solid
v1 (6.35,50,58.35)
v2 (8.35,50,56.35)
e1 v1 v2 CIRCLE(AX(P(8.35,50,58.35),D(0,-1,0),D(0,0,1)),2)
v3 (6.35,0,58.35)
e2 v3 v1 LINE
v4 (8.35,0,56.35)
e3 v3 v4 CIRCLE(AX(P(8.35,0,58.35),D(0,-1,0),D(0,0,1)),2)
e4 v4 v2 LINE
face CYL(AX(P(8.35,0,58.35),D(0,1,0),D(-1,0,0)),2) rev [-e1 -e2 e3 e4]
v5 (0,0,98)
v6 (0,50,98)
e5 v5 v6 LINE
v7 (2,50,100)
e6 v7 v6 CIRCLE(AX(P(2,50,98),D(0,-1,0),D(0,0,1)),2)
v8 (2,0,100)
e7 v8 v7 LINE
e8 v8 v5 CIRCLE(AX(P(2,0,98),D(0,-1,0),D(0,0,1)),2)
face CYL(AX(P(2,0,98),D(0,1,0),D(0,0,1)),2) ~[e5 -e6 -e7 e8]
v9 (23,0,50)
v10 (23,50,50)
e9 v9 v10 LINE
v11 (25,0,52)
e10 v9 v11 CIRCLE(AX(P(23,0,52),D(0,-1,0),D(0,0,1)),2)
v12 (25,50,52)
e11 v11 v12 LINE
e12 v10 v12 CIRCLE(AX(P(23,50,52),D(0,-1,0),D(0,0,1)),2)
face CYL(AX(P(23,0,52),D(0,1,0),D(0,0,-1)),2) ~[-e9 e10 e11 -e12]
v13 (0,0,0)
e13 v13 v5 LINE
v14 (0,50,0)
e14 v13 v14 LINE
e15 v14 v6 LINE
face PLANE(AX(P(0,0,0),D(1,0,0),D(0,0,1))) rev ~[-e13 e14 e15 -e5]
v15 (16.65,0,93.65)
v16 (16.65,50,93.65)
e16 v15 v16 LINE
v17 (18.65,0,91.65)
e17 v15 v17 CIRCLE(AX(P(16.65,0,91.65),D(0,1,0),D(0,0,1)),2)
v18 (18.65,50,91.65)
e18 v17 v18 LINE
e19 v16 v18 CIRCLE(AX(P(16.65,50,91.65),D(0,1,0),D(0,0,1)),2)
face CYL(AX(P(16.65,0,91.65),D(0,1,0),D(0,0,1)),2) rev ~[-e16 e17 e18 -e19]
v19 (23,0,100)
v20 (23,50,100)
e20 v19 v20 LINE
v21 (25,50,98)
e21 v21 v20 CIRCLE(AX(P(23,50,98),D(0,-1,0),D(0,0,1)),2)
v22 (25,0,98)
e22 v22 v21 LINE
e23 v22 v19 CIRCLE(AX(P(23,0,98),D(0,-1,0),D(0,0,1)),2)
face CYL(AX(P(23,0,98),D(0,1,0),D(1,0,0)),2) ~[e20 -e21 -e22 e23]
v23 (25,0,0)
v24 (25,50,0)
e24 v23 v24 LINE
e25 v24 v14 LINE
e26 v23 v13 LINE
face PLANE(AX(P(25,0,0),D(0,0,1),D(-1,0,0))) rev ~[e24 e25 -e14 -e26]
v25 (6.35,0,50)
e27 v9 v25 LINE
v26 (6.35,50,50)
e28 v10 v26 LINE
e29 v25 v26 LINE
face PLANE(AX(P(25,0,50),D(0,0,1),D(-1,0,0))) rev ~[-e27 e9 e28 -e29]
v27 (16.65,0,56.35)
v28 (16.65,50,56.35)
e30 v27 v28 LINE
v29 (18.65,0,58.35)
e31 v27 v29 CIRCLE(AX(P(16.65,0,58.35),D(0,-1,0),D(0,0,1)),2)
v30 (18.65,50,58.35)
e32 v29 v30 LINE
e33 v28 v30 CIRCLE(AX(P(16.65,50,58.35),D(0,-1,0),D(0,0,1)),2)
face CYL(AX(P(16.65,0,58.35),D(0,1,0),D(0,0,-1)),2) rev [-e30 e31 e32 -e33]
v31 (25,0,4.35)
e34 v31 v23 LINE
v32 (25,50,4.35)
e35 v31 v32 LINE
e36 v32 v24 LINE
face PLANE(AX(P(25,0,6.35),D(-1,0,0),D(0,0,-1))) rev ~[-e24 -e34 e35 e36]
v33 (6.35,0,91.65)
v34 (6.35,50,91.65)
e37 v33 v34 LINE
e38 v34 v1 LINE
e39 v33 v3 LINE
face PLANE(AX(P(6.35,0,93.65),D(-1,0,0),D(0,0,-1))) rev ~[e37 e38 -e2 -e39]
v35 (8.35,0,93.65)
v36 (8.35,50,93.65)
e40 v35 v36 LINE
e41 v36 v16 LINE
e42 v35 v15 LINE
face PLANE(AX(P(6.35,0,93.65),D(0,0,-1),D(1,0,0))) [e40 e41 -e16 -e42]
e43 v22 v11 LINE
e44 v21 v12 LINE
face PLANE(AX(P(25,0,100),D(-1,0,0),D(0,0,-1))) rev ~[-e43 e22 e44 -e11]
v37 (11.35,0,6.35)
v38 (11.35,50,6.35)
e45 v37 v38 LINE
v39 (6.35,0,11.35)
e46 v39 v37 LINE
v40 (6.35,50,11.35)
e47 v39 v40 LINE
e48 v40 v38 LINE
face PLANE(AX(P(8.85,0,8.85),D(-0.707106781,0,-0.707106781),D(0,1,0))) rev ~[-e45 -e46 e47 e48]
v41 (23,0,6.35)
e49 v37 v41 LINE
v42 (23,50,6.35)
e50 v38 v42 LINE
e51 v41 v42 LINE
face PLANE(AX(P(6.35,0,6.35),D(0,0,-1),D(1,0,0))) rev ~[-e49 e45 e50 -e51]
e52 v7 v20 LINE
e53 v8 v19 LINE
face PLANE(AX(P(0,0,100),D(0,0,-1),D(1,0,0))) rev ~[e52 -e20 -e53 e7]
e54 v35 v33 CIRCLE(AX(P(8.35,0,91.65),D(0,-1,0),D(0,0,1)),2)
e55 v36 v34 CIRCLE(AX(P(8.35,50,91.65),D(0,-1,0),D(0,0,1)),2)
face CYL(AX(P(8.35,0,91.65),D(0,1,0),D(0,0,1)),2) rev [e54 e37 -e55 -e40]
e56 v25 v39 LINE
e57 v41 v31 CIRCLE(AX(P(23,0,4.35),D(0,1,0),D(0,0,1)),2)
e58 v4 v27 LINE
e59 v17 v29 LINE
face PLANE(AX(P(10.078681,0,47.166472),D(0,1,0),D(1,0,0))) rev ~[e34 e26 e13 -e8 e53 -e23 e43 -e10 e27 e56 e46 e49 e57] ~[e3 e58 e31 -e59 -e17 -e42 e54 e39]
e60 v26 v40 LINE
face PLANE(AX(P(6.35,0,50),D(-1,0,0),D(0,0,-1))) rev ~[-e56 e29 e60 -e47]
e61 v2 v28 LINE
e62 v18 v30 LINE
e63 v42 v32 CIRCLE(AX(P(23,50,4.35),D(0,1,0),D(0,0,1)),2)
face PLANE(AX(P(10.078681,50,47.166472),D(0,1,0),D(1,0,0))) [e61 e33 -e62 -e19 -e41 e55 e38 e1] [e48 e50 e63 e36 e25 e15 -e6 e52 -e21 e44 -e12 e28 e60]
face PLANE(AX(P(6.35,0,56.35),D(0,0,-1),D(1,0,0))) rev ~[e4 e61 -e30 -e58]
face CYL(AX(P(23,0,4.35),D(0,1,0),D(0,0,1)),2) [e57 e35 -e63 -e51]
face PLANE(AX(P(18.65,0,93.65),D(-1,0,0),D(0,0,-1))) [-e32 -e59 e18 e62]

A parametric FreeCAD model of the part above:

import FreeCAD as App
import Part
import Sketcher
from FreeCAD import Vector


def edges_at(feature, points):
    """Names of the edges that pass closest to the given points."""
    edges = feature.Shape.Edges
    near = lambda p: min(range(len(edges)), key=lambda i: edges[i].distToShape(Part.Vertex(*p))[0])
    return sorted({f"Edge{near(p) + 1}" for p in points})

doc = App.newDocument("Part")
params = doc.addObject("Spreadsheet::Sheet", "Params")
for row, (alias, value) in enumerate([
    ("sketch1_width", "25 mm"),
    ("sketch1_height", "100 mm"),
    ("sketch1_height2", "50 mm"),
    ("sketch1_width2", "12.3 mm"),
    ("sketch1_height3", "37.3 mm"),
    ("pad1_length", "50 mm"),
    ("chamfer_size", "5 mm"),
    ("fillet_radius", "2 mm"),
    ("fillet2_radius", "2 mm"),
    ("fillet3_radius", "2 mm"),
    ("fillet4_radius", "2 mm"),
    ("fillet5_radius", "2 mm"),
    ("fillet6_radius", "2 mm"),
    ("fillet7_radius", "2 mm"),
    ("fillet8_radius", "2 mm"),
], start=1):
    params.set(f"A{row}", alias)
    params.set(f"B{row}", "=" + value)
    params.setAlias(f"B{row}", alias)

body = doc.addObject("PartDesign::Body", "Body")

sketch1 = body.newObject("Sketcher::SketchObject", "Sketch")
sketch1.AttachmentSupport = (doc.getObject("XZ_Plane"), [""])
sketch1.MapMode = "FlatFace"
sketch1.addGeometry(Part.LineSegment(Vector(25, 50, 0), Vector(6.35, 50, 0)), False)
sketch1.addGeometry(Part.LineSegment(Vector(6.35, 50, 0), Vector(6.35, 6.35, 0)), False)
sketch1.addGeometry(Part.LineSegment(Vector(6.35, 6.35, 0), Vector(25, 6.35, 0)), False)
sketch1.addGeometry(Part.LineSegment(Vector(25, 6.35, 0), Vector(25, 0, 0)), False)
sketch1.addGeometry(Part.LineSegment(Vector(25, 0, 0), Vector(0, 0, 0)), False)
sketch1.addGeometry(Part.LineSegment(Vector(0, 0, 0), Vector(0, 100, 0)), False)
sketch1.addGeometry(Part.LineSegment(Vector(0, 100, 0), Vector(25, 100, 0)), False)
sketch1.addGeometry(Part.LineSegment(Vector(25, 100, 0), Vector(25, 50, 0)), False)
sketch1.addGeometry(Part.LineSegment(Vector(18.65, 93.65, 0), Vector(6.35, 93.65, 0)), False)
sketch1.addGeometry(Part.LineSegment(Vector(6.35, 93.65, 0), Vector(6.35, 56.35, 0)), False)
sketch1.addGeometry(Part.LineSegment(Vector(6.35, 56.35, 0), Vector(18.65, 56.35, 0)), False)
sketch1.addGeometry(Part.LineSegment(Vector(18.65, 56.35, 0), Vector(18.65, 93.65, 0)), False)
sketch1.addConstraint(Sketcher.Constraint("Coincident", 0, 2, 1, 1))
sketch1.addConstraint(Sketcher.Constraint("Coincident", 1, 2, 2, 1))
sketch1.addConstraint(Sketcher.Constraint("Coincident", 2, 2, 3, 1))
sketch1.addConstraint(Sketcher.Constraint("Coincident", 3, 2, 4, 1))
sketch1.addConstraint(Sketcher.Constraint("Coincident", 4, 2, 5, 1))
sketch1.addConstraint(Sketcher.Constraint("Coincident", 5, 2, 6, 1))
sketch1.addConstraint(Sketcher.Constraint("Coincident", 6, 2, 7, 1))
sketch1.addConstraint(Sketcher.Constraint("Coincident", 7, 2, 0, 1))
sketch1.addConstraint(Sketcher.Constraint("Coincident", 8, 2, 9, 1))
sketch1.addConstraint(Sketcher.Constraint("Coincident", 9, 2, 10, 1))
sketch1.addConstraint(Sketcher.Constraint("Coincident", 10, 2, 11, 1))
sketch1.addConstraint(Sketcher.Constraint("Coincident", 11, 2, 8, 1))
sketch1.addConstraint(Sketcher.Constraint("Horizontal", 0))
sketch1.addConstraint(Sketcher.Constraint("Vertical", 1))
sketch1.addConstraint(Sketcher.Constraint("Horizontal", 2))
sketch1.addConstraint(Sketcher.Constraint("Vertical", 3))
sketch1.addConstraint(Sketcher.Constraint("Horizontal", 4))
sketch1.addConstraint(Sketcher.Constraint("Vertical", 5))
sketch1.addConstraint(Sketcher.Constraint("Horizontal", 6))
sketch1.addConstraint(Sketcher.Constraint("Vertical", 7))
sketch1.addConstraint(Sketcher.Constraint("Horizontal", 8))
sketch1.addConstraint(Sketcher.Constraint("Vertical", 9))
sketch1.addConstraint(Sketcher.Constraint("Horizontal", 10))
sketch1.addConstraint(Sketcher.Constraint("Vertical", 11))
sketch1.addConstraint(Sketcher.Constraint("Coincident", 4, 2, -1, 1))
sketch1.addConstraint(Sketcher.Constraint("Vertical", 3, 2, 6, 2))
sketch1.addConstraint(Sketcher.Constraint("Vertical", 1, 2, 8, 2))
sketch1.addConstraint(Sketcher.Constraint("DistanceX", 4, 2, 4, 1, 25.0))
sketch1.addConstraint(Sketcher.Constraint("DistanceY", 5, 1, 5, 2, 100.0))
sketch1.addConstraint(Sketcher.Constraint("DistanceY", 7, 2, 7, 1, 50.0))
sketch1.addConstraint(Sketcher.Constraint("DistanceX", 8, 2, 8, 1, 12.3))
sketch1.addConstraint(Sketcher.Constraint("DistanceY", 9, 2, 9, 1, 37.3))
sketch1.addConstraint(Sketcher.Constraint("DistanceX", 0, 2, 0, 1, 18.65))
sketch1.addConstraint(Sketcher.Constraint("DistanceY", 1, 2, 1, 1, 43.65))
sketch1.addConstraint(Sketcher.Constraint("DistanceY", 1, 2, 8, 2, 87.3))
sketch1.setExpression("Constraints[27]", "Params.sketch1_width")
sketch1.setExpression("Constraints[28]", "Params.sketch1_height")
sketch1.setExpression("Constraints[29]", "Params.sketch1_height2")
sketch1.setExpression("Constraints[30]", "Params.sketch1_width2")
sketch1.setExpression("Constraints[31]", "Params.sketch1_height3")
pad1 = body.newObject("PartDesign::Pad", "Pad")
pad1.Profile = sketch1
pad1.setExpression("Length", "Params.pad1_length")
pad1.Reversed = True
doc.recompute()

chamfer = body.newObject("PartDesign::Chamfer", "Chamfer")
chamfer.Base = (pad1, edges_at(pad1, [(6.35, 25, 6.35)]))
chamfer.setExpression("Size", "Params.chamfer_size")
doc.recompute()

fillet = body.newObject("PartDesign::Fillet", "Fillet")
fillet.Base = (chamfer, edges_at(chamfer, [(25, 25, 6.35)]))
fillet.setExpression("Radius", "Params.fillet_radius")
doc.recompute()

fillet2 = body.newObject("PartDesign::Fillet", "Fillet001")
fillet2.Base = (fillet, edges_at(fillet, [(25, 25, 50)]))
fillet2.setExpression("Radius", "Params.fillet2_radius")
doc.recompute()

fillet3 = body.newObject("PartDesign::Fillet", "Fillet002")
fillet3.Base = (fillet2, edges_at(fillet2, [(25, 25, 100)]))
fillet3.setExpression("Radius", "Params.fillet3_radius")
doc.recompute()

fillet4 = body.newObject("PartDesign::Fillet", "Fillet003")
fillet4.Base = (fillet3, edges_at(fillet3, [(0, 25, 100)]))
fillet4.setExpression("Radius", "Params.fillet4_radius")
doc.recompute()

fillet5 = body.newObject("PartDesign::Fillet", "Fillet004")
fillet5.Base = (fillet4, edges_at(fillet4, [(6.35, 25, 93.65)]))
fillet5.setExpression("Radius", "Params.fillet5_radius")
doc.recompute()

fillet6 = body.newObject("PartDesign::Fillet", "Fillet005")
fillet6.Base = (fillet5, edges_at(fillet5, [(18.65, 25, 93.65)]))
fillet6.setExpression("Radius", "Params.fillet6_radius")
doc.recompute()

fillet7 = body.newObject("PartDesign::Fillet", "Fillet006")
fillet7.Base = (fillet6, edges_at(fillet6, [(6.35, 25, 56.35)]))
fillet7.setExpression("Radius", "Params.fillet7_radius")
doc.recompute()

fillet8 = body.newObject("PartDesign::Fillet", "Fillet007")
fillet8.Base = (fillet7, edges_at(fillet7, [(18.65, 25, 56.35)]))
fillet8.setExpression("Radius", "Params.fillet8_radius")

doc.recompute()
